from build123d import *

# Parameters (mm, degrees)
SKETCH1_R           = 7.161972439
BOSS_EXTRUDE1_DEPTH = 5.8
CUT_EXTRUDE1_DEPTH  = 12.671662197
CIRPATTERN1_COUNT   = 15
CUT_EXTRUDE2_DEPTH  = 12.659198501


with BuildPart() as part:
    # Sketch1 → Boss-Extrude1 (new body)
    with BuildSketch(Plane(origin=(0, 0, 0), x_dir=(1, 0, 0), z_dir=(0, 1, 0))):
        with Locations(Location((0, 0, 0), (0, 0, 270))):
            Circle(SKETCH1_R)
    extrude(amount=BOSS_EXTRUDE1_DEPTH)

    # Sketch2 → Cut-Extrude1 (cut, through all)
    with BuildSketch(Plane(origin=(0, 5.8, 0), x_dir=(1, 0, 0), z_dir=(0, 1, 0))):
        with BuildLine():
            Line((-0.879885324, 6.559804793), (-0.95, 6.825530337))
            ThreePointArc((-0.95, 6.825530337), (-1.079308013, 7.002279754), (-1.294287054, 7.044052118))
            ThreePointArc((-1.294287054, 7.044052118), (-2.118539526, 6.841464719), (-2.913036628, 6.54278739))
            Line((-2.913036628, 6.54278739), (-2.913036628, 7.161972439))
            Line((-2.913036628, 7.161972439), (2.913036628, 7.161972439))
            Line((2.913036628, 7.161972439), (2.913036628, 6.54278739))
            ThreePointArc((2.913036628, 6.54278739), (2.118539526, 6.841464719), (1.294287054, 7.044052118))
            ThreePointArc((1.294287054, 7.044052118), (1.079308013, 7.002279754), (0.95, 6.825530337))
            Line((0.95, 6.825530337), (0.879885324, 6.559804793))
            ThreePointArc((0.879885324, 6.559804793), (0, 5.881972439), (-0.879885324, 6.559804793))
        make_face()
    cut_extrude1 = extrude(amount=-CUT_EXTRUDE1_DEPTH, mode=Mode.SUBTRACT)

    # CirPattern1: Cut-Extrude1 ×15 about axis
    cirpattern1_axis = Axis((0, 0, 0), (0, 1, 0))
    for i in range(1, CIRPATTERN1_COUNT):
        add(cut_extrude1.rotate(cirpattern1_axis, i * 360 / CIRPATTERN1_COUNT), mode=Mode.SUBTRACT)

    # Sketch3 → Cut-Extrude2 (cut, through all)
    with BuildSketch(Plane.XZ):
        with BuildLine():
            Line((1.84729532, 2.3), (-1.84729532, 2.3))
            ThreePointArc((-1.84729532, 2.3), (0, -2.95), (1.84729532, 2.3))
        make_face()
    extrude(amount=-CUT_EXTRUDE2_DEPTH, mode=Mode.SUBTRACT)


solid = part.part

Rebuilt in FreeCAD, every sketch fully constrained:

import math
import FreeCAD as App
import Part
import Sketcher
from FreeCAD import Vector
Q = App.Units.Quantity

doc = App.newDocument("Part")
body = doc.addObject("PartDesign::Body", "Body")

# Sketch on XZ plane
sketch1 = body.newObject("Sketcher::SketchObject", "Sketch")
sketch1.AttachmentSupport = (doc.getObject("XZ_Plane"), [""])
sketch1.MapMode = "FlatFace"
sketch1.addGeometry(Part.Circle(Vector(0, 0, 0), Vector(0, 0, 1), 7), False)
sketch1.addConstraint([
    Sketcher.Constraint("Coincident", 0, 3, -1, 1),
    Sketcher.Constraint("Diameter", 0, Q("14.323945 mm")),
])
pad1 = body.newObject("PartDesign::Pad", "Pad")
pad1.Profile = sketch1
pad1.Length = 5.8
pad1.Reversed = True

# Sketch on XZ plane
sketch2 = body.newObject("Sketcher::SketchObject", "Sketch001")
sketch2.AttachmentSupport = (doc.getObject("XZ_Plane"), [""])
sketch2.MapMode = "FlatFace"
sketch2.AttachmentOffset = App.Placement(Vector(0, 0, -5.8), App.Rotation())
sketch2.addGeometry([
    Part.LineSegment(Vector(-0.95, -6.83, 0), Vector(-0.88, -6.56, 0)),  # 0
    Part.ArcOfCircle(Part.Circle(Vector(0, -6.79, 0), Vector(0, 0, 1), 0.91), math.radians(15), math.radians(165)),  # 1
    Part.LineSegment(Vector(0.88, -6.56, 0), Vector(0.95, -6.83, 0)),  # 2
    Part.ArcOfCircle(Part.Circle(Vector(1.24, -6.75, 0), Vector(0, 0, 1), 0.3), math.radians(-165), math.radians(-80)),  # 3
    Part.ArcOfCircle(Part.Circle(Vector(0, 0, 0), Vector(0, 0, 1), 7.16), math.radians(-79.59), math.radians(-66)),  # 4
    Part.LineSegment(Vector(2.91, -6.54, 0), Vector(2.91, -7.16, 0)),  # 5
    Part.LineSegment(Vector(2.91, -7.16, 0), Vector(-2.91, -7.16, 0)),  # 6
    Part.LineSegment(Vector(-2.91, -7.16, 0), Vector(-2.91, -6.54, 0)),  # 7
    Part.ArcOfCircle(Part.Circle(Vector(0, 0, 0), Vector(0, 0, 1), 7.16), math.radians(-114), math.radians(-100.41)),  # 8
    Part.ArcOfCircle(Part.Circle(Vector(-1.24, -6.75, 0), Vector(0, 0, 1), 0.3), math.radians(-100), math.radians(-15)),  # 9
], False)
sketch2.addConstraint([
    Sketcher.Constraint("Tangent", 0, 2, 1, 2),
    Sketcher.Constraint("Tangent", 1, 1, 2, 1),
    Sketcher.Constraint("Tangent", 2, 2, 3, 1),
    Sketcher.Constraint("Tangent", 3, 2, 4, 1),
    Sketcher.Constraint("Coincident", 4, 2, 5, 1),
    Sketcher.Constraint("Coincident", 5, 2, 6, 1),
    Sketcher.Constraint("Coincident", 6, 2, 7, 1),
    Sketcher.Constraint("Coincident", 7, 2, 8, 1),
    Sketcher.Constraint("Tangent", 8, 2, 9, 1),
    Sketcher.Constraint("Tangent", 9, 2, 0, 1),
    Sketcher.Constraint("Vertical", 5),
    Sketcher.Constraint("Horizontal", 6),
    Sketcher.Constraint("Vertical", 7),
    Sketcher.Constraint("Coincident", 4, 3, -1, 1),
    Sketcher.Constraint("Coincident", 8, 3, -1, 1),
    Sketcher.Constraint("Equal", 4, 8),
    Sketcher.Constraint("Equal", 3, 9),
    Sketcher.Constraint("Symmetric", 0, 2, 1, 1, -2),
    Sketcher.Constraint("Horizontal", 4, 2, 7, 2),
    Sketcher.Constraint("Radius", 3, Q("0.3 mm")),
    Sketcher.Constraint("Radius", 1, Q("0.91 mm")),
    Sketcher.Constraint("DistanceX", -1, 1, 2, 2, Q("0.95 mm")),
    Sketcher.Constraint("DistanceY", 6, 2, 1, 3, Q("0.37 mm")),
    Sketcher.Constraint("Radius", 4, Q("7.161972 mm")),
    Sketcher.Constraint("DistanceX", 1, 1, 3, 2, Q("0.414402 mm")),
    Sketcher.Constraint("DistanceX", 6, 2, 6, 1, Q("5.826073 mm")),
])
pocket1 = body.newObject("PartDesign::Pocket", "Pocket")
pocket1.Profile = sketch2
pocket1.Type = "ThroughAll"
pocket1.Reversed = True
doc.recompute()

polarpattern = body.newObject("PartDesign::PolarPattern", "PolarPattern")
polarpattern.Originals = [pocket1]
polarpattern.Axis = (doc.getObject("Y_Axis"), [""])
polarpattern.Angle = 360
polarpattern.Occurrences = 15
body.Tip = polarpattern

# Sketch on XZ plane
sketch3 = body.newObject("Sketcher::SketchObject", "Sketch002")
sketch3.AttachmentSupport = (doc.getObject("XZ_Plane"), [""])
sketch3.MapMode = "FlatFace"
sketch3.addGeometry([
    Part.LineSegment(Vector(1.8, 2.3, 0), Vector(-1.8, 2.3, 0)),
    Part.ArcOfCircle(Part.Circle(Vector(0, 0, 0), Vector(0, 0, 1), 3), math.radians(129), math.radians(411)),
], False)
sketch3.addConstraint([
    Sketcher.Constraint("Coincident", 0, 1, 1, 2),
    Sketcher.Constraint("Coincident", 1, 1, 0, 2),
    Sketcher.Constraint("Horizontal", 0),
    Sketcher.Constraint("Coincident", 1, 3, -1, 1),
    Sketcher.Constraint("Radius", 1, Q("2.95 mm")),
    Sketcher.Constraint("DistanceY", -1, 1, 0, 1, Q("2.3 mm")),
])
pocket2 = body.newObject("PartDesign::Pocket", "Pocket001")
pocket2.Profile = sketch3
pocket2.Type = "ThroughAll"

doc.recompute()
